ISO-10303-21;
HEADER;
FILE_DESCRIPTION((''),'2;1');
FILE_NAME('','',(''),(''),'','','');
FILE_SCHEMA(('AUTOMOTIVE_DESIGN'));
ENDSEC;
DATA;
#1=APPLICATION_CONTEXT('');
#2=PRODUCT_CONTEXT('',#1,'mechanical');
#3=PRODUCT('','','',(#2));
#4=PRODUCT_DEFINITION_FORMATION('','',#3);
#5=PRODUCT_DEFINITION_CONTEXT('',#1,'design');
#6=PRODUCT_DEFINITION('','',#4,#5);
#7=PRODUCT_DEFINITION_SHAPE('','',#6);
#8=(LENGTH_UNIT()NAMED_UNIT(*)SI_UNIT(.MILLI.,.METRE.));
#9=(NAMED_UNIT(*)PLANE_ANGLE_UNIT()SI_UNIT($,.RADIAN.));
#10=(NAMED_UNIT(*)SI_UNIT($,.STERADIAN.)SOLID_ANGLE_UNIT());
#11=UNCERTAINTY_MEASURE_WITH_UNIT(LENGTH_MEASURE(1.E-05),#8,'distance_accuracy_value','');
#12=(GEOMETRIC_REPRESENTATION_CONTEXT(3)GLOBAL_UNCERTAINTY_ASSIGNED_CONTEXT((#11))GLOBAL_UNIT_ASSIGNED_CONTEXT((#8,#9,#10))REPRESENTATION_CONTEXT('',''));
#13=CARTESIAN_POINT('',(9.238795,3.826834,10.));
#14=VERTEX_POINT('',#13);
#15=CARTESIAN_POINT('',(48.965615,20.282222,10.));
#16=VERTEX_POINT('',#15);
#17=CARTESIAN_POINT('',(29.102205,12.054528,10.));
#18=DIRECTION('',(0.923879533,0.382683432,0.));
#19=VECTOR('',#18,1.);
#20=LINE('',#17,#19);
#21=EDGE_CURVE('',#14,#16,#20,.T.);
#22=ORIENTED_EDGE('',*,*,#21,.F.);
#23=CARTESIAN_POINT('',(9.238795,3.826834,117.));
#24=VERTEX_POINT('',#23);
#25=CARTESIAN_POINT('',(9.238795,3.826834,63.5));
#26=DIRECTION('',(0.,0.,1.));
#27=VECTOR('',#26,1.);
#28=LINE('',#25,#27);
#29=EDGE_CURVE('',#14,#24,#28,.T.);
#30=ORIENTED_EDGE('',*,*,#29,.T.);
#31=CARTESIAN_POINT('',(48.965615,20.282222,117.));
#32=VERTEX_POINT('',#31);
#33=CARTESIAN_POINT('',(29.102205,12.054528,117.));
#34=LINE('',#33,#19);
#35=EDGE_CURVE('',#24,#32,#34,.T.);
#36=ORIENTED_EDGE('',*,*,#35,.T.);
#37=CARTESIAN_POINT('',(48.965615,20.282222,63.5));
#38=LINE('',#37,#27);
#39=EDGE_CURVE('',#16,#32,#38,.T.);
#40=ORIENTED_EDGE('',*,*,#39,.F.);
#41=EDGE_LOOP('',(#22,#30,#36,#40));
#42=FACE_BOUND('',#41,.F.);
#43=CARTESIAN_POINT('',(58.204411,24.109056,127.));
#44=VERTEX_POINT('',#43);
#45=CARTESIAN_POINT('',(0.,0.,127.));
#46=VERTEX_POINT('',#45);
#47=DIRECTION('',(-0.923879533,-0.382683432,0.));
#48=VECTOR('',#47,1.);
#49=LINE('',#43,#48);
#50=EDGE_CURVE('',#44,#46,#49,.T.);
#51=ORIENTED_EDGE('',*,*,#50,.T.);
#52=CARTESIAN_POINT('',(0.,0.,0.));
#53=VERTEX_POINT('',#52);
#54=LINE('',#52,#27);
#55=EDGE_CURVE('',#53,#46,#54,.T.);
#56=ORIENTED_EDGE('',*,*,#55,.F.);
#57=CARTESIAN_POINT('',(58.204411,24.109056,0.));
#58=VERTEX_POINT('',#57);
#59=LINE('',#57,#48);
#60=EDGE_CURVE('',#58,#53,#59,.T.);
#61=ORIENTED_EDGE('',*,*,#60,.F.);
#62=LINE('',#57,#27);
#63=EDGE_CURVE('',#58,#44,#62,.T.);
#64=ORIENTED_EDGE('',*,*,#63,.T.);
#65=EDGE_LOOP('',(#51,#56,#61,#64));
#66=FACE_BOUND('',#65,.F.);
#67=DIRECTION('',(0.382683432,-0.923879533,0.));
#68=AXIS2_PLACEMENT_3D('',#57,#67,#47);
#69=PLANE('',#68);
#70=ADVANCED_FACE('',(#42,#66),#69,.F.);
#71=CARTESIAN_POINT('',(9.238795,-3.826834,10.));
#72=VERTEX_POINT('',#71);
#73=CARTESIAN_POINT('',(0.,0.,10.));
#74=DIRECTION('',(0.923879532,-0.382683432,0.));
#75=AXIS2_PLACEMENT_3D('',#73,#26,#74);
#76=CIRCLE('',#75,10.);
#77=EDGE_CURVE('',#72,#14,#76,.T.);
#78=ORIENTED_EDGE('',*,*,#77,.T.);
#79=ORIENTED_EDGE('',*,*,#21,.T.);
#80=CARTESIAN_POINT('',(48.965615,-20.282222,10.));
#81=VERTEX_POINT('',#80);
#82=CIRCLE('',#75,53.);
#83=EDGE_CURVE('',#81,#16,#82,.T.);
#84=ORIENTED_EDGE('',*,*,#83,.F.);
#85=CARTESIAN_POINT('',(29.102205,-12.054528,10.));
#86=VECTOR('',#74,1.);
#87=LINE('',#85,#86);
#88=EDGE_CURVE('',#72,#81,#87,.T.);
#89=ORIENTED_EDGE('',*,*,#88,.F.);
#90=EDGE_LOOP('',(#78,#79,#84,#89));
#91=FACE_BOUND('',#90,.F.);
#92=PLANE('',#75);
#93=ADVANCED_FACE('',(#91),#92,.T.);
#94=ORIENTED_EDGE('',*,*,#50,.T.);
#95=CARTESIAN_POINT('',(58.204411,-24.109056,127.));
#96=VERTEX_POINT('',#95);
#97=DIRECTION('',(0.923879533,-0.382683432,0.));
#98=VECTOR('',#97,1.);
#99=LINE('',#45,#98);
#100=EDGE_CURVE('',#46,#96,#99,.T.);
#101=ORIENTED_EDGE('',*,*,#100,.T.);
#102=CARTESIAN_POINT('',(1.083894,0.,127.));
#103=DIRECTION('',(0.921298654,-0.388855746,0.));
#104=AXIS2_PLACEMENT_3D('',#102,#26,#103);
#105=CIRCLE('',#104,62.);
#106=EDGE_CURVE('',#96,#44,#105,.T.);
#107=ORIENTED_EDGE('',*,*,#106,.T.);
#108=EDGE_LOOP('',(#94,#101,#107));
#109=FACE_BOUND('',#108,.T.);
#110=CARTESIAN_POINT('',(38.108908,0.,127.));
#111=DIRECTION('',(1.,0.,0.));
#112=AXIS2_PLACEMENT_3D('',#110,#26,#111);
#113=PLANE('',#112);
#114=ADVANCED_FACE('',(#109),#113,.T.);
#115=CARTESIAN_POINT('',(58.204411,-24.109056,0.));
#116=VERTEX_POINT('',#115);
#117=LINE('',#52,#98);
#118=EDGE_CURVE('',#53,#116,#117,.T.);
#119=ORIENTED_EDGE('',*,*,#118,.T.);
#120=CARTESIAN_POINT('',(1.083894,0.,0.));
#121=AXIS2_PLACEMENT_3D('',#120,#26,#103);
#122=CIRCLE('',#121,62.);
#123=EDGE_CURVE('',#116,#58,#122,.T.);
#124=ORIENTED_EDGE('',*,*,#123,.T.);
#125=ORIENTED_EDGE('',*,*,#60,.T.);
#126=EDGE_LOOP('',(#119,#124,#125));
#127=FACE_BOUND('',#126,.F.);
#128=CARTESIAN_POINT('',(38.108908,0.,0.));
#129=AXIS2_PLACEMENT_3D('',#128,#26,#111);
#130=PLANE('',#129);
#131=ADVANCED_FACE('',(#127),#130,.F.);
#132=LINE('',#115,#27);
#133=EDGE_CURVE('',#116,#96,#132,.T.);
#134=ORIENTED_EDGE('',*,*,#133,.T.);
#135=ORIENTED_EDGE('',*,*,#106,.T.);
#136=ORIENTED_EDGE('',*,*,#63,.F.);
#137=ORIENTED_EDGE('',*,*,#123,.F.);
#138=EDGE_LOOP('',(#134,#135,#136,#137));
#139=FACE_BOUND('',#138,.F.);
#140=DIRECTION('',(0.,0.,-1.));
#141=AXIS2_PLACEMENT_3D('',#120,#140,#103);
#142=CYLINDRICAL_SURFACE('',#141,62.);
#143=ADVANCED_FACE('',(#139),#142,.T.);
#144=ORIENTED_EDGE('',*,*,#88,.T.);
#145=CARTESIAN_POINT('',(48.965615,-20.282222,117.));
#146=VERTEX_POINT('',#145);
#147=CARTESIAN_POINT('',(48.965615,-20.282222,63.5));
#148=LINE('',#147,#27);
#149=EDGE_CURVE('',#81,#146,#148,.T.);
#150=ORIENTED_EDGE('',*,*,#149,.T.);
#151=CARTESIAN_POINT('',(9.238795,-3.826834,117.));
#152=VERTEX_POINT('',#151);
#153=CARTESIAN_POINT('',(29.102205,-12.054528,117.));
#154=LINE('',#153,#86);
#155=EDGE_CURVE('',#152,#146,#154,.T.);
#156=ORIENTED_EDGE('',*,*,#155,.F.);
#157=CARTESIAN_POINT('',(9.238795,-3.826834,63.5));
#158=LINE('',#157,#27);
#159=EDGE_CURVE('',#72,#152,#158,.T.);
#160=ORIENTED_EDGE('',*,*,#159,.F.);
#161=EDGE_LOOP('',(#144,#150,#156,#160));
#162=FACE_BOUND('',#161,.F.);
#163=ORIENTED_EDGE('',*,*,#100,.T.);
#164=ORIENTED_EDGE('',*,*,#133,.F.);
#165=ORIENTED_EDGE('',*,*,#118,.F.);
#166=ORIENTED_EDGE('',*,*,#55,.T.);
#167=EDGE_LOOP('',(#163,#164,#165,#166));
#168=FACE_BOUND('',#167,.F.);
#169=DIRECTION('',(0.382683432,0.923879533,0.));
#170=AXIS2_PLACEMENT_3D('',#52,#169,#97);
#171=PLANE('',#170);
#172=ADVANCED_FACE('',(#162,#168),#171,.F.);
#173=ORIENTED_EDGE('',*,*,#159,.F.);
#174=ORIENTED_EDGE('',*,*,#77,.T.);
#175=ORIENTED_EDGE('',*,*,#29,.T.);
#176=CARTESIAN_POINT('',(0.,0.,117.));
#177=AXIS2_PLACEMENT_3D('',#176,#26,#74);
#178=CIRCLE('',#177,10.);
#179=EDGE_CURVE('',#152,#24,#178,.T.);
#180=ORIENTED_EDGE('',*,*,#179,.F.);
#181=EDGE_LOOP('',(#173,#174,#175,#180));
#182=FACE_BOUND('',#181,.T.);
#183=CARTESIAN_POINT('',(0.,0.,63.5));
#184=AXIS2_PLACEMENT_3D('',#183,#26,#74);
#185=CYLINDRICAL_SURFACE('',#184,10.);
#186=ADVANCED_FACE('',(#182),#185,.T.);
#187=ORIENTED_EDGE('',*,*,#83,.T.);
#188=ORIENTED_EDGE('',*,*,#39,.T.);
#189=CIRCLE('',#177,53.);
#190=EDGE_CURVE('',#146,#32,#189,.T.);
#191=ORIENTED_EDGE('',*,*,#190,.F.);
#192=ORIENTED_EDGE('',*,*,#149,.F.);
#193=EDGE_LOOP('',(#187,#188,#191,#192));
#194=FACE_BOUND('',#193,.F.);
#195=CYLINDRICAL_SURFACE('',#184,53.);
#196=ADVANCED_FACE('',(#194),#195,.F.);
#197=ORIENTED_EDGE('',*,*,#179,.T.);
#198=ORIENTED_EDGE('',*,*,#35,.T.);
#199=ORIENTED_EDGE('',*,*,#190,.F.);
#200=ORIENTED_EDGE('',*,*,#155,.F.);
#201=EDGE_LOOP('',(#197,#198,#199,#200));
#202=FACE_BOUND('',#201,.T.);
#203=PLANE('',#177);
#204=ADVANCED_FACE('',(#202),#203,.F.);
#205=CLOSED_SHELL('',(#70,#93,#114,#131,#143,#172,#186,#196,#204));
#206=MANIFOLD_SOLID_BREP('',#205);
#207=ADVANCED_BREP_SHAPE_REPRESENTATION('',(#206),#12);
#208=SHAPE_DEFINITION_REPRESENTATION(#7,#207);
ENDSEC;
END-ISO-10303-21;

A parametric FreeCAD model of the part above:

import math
import FreeCAD as App
import Part
import Sketcher

V = App.Vector
Q = App.Units.Quantity

doc = App.newDocument("Part")
body = doc.addObject("PartDesign::Body", "Body")

# Sketch on XY plane
sketch1 = body.newObject("Sketcher::SketchObject", "Sketch")
sketch1.AttachmentSupport = (doc.getObject("XY_Plane"), [""])
sketch1.MapMode = "FlatFace"
sketch1.addGeometry(Part.LineSegment(V(58, 24, 0), V(0, 0, 0)), False)
sketch1.addGeometry(Part.LineSegment(V(0, 0, 0), V(58, -24, 0)), False)
sketch1.addGeometry(Part.ArcOfCircle(Part.Circle(V(1, 0, 0), V(0, 0, 1), 62), math.radians(-23), math.radians(23)), False)
sketch1.addConstraint(Sketcher.Constraint("Coincident", 0, 2, 1, 1))
sketch1.addConstraint(Sketcher.Constraint("Coincident", 1, 2, 2, 1))
sketch1.addConstraint(Sketcher.Constraint("Coincident", 2, 2, 0, 1))
sketch1.addConstraint(Sketcher.Constraint("Coincident", 0, 2, -1, 1))
sketch1.addConstraint(Sketcher.Constraint("Symmetric", 1, 2, 2, 2, -1))
sketch1.addConstraint(Sketcher.Constraint("Radius", 2, Q("62 mm")))
sketch1.addConstraint(Sketcher.Constraint("Distance", 0, Q("63 mm")))
sketch1.addConstraint(Sketcher.Constraint("Angle", 0, Q("-157.5 deg")))
pad1 = body.newObject("PartDesign::Pad", "Pad")
pad1.Profile = sketch1
pad1.Length = 127

# Sketch on an angled plane
sketch2 = body.newObject("Sketcher::SketchObject", "Sketch001")
sketch2.Placement = App.Placement(V(0, 0, 0), App.Rotation(V(0.923879532, -0.382683432, 0), V(0, 0, 0.999999999), V(-0.382683432, -0.923879532, 0), "ZXY"))
sketch2.addGeometry(Part.LineSegment(V(10, 117, 0), V(10, 10, 0)), False)
sketch2.addGeometry(Part.LineSegment(V(10, 10, 0), V(53, 10, 0)), False)
sketch2.addGeometry(Part.LineSegment(V(53, 10, 0), V(53, 117, 0)), False)
sketch2.addGeometry(Part.LineSegment(V(53, 117, 0), V(10, 117, 0)), False)
sketch2.addConstraint(Sketcher.Constraint("Coincident", 0, 2, 1, 1))
sketch2.addConstraint(Sketcher.Constraint("Coincident", 1, 2, 2, 1))
sketch2.addConstraint(Sketcher.Constraint("Coincident", 2, 2, 3, 1))
sketch2.addConstraint(Sketcher.Constraint("Coincident", 3, 2, 0, 1))
sketch2.addConstraint(Sketcher.Constraint("Vertical", 0))
sketch2.addConstraint(Sketcher.Constraint("Horizontal", 1))
sketch2.addConstraint(Sketcher.Constraint("Vertical", 2))
sketch2.addConstraint(Sketcher.Constraint("Horizontal", 3))
sketch2.addConstraint(Sketcher.Constraint("DistanceX", 1, 1, 1, 2, Q("43 mm")))
sketch2.addConstraint(Sketcher.Constraint("DistanceY", 0, 2, 0, 1, Q("107 mm")))
sketch2.addConstraint(Sketcher.Constraint("DistanceX", -1, 1, 0, 2, Q("10 mm")))
sketch2.addConstraint(Sketcher.Constraint("DistanceY", -1, 1, 0, 2, Q("10 mm")))
groove = body.newObject("PartDesign::Groove", "Groove")
groove.Profile = sketch2
groove.ReferenceAxis = (sketch2, ["V_Axis"])
groove.Angle = 85

doc.recompute()
